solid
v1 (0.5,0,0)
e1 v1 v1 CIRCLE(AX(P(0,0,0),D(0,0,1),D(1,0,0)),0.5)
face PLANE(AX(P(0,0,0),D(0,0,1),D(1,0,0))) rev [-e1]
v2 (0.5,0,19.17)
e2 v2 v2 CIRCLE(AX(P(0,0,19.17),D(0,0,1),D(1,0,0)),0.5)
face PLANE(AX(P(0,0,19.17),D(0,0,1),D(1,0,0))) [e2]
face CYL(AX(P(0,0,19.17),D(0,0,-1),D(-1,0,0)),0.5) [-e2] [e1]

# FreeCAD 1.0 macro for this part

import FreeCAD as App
import Part
import Sketcher

doc = App.newDocument("Part")
body = doc.addObject("PartDesign::Body", "Body")

# Sketch on XY plane
sketch1 = doc.addObject("Sketcher::SketchObject", "Sketch")
body.addObject(sketch1)
sketch1.AttachmentSupport = (doc.XY_Plane, [""])
sketch1.MapMode = "FlatFace"
sketch1.addGeometry(Part.Circle(App.Vector(0, 0, 0), App.Vector(0, 0, 1), 0.5), False)
sketch1.addConstraint([
    Sketcher.Constraint("Coincident", 0, 3, -1, 1),
    Sketcher.Constraint("Diameter", 0, 1.0),
])
pad1 = doc.addObject("PartDesign::Pad", "Pad")
body.addObject(pad1)
pad1.Profile = sketch1
pad1.Length = 19.17

doc.recompute()
